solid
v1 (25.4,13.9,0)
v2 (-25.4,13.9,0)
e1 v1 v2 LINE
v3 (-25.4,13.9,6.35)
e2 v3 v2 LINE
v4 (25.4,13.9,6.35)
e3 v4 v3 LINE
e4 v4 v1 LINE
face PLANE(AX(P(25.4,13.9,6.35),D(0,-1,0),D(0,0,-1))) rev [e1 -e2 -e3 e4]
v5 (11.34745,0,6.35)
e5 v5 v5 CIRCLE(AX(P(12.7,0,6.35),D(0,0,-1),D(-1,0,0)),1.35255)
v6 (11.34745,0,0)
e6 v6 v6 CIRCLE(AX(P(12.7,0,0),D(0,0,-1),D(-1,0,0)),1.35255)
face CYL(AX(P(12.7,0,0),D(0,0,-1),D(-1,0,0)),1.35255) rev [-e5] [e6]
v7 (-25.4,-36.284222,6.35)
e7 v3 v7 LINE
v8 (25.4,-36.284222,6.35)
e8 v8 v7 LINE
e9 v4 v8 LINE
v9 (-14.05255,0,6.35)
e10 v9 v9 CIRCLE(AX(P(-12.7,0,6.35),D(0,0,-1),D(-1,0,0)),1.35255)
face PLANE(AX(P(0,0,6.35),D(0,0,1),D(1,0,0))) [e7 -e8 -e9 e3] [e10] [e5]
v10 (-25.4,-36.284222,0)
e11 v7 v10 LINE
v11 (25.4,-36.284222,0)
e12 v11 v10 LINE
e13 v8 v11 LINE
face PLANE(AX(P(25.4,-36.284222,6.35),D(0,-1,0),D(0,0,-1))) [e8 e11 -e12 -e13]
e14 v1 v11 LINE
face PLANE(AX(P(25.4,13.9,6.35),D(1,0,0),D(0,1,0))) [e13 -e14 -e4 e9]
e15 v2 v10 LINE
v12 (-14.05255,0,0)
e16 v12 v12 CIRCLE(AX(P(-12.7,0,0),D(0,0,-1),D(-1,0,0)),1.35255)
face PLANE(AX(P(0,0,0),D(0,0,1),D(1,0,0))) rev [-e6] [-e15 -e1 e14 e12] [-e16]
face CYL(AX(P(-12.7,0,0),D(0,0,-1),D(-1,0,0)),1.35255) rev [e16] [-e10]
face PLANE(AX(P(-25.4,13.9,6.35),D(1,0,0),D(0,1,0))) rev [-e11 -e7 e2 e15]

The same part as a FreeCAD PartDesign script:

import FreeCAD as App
import Part
import Sketcher
from FreeCAD import Vector
Q = App.Units.Quantity


def add_polygon(sketch, points):
    """Adds a closed chain of lines whose ends are joined by coincident constraints."""
    first, n = sketch.GeometryCount, len(points)
    for a, b in zip(points, points[1:] + points[:1]):
        sketch.addGeometry(Part.LineSegment(App.Vector(*a, 0), App.Vector(*b, 0)), False)
    for i in range(n):
        sketch.addConstraint(Sketcher.Constraint("Coincident", first + i, 2, first + (i + 1) % n, 1))

doc = App.newDocument("Part")
params = doc.addObject("Spreadsheet::Sheet", "Params")
for row, (alias, value) in enumerate([
    ("sketch1_width", "2 in"),
    ("pad1_length", "0.25 in"),
    ("hole_diameter", "0.1065 in"),
], start=1):
    params.set(f"A{row}", alias)
    params.set(f"B{row}", "=" + value)
    params.setAlias(f"B{row}", alias)

body = doc.addObject("PartDesign::Body", "Body")

# Sketch on XY plane
sketch1 = body.newObject("Sketcher::SketchObject", "Sketch")
sketch1.AttachmentSupport = (doc.getObject("XY_Plane"), [""])
sketch1.MapMode = "FlatFace"
add_polygon(sketch1, [(-25.4, 13.9), (-25.4, -36.284222), (25.4, -36.284222), (25.4, 13.9)])  # lines 0-3
sketch1.addConstraint([
    Sketcher.Constraint("Vertical", 0),
    Sketcher.Constraint("Horizontal", 1),
    Sketcher.Constraint("Vertical", 2),
    Sketcher.Constraint("Horizontal", 3),
    Sketcher.Constraint("DistanceX", 1, 1, 1, 2, Q("2 in")),
    Sketcher.Constraint("DistanceX", 0, 2, -1, 1, Q("1 in")),
    Sketcher.Constraint("DistanceY", 0, 2, 0, 1, Q("50.184222 mm")),
    Sketcher.Constraint("DistanceY", -1, 1, 2, 2, Q("13.9 mm")),
])
sketch1.setExpression("Constraints[8]", "Params.sketch1_width")
pad1 = body.newObject("PartDesign::Pad", "Pad")
pad1.Profile = sketch1
pad1.setExpression("Length", "Params.pad1_length")

# Sketch on XY plane
sketch2 = body.newObject("Sketcher::SketchObject", "Sketch001")
sketch2.AttachmentSupport = (doc.getObject("XY_Plane"), [""])
sketch2.MapMode = "FlatFace"
sketch2.addGeometry([
    Part.Circle(Vector(12.7, 0, 0), Vector(0, 0, 1), 1.35255),
    Part.Circle(Vector(-12.7, 0, 0), Vector(0, 0, 1), 1.35255),
], False)
sketch2.addConstraint([
    Sketcher.Constraint("Equal", 0, 1),
    Sketcher.Constraint("Symmetric", 0, 3, 1, 3, -1, 1),
    Sketcher.Constraint("PointOnObject", 0, 3, -1),
    Sketcher.Constraint("DistanceX", 1, 3, 0, 3, Q("1 in")),
    Sketcher.Constraint("Diameter", 0, Q("0.1065 in")),
])
doc.recompute()
hole = body.newObject("PartDesign::Hole", "Hole")
hole.Profile = sketch2
hole.ThreadType = "None"
hole.setExpression("Diameter", "Params.hole_diameter")
hole.DepthType = "ThroughAll"
hole.Reversed = True

doc.recompute()
